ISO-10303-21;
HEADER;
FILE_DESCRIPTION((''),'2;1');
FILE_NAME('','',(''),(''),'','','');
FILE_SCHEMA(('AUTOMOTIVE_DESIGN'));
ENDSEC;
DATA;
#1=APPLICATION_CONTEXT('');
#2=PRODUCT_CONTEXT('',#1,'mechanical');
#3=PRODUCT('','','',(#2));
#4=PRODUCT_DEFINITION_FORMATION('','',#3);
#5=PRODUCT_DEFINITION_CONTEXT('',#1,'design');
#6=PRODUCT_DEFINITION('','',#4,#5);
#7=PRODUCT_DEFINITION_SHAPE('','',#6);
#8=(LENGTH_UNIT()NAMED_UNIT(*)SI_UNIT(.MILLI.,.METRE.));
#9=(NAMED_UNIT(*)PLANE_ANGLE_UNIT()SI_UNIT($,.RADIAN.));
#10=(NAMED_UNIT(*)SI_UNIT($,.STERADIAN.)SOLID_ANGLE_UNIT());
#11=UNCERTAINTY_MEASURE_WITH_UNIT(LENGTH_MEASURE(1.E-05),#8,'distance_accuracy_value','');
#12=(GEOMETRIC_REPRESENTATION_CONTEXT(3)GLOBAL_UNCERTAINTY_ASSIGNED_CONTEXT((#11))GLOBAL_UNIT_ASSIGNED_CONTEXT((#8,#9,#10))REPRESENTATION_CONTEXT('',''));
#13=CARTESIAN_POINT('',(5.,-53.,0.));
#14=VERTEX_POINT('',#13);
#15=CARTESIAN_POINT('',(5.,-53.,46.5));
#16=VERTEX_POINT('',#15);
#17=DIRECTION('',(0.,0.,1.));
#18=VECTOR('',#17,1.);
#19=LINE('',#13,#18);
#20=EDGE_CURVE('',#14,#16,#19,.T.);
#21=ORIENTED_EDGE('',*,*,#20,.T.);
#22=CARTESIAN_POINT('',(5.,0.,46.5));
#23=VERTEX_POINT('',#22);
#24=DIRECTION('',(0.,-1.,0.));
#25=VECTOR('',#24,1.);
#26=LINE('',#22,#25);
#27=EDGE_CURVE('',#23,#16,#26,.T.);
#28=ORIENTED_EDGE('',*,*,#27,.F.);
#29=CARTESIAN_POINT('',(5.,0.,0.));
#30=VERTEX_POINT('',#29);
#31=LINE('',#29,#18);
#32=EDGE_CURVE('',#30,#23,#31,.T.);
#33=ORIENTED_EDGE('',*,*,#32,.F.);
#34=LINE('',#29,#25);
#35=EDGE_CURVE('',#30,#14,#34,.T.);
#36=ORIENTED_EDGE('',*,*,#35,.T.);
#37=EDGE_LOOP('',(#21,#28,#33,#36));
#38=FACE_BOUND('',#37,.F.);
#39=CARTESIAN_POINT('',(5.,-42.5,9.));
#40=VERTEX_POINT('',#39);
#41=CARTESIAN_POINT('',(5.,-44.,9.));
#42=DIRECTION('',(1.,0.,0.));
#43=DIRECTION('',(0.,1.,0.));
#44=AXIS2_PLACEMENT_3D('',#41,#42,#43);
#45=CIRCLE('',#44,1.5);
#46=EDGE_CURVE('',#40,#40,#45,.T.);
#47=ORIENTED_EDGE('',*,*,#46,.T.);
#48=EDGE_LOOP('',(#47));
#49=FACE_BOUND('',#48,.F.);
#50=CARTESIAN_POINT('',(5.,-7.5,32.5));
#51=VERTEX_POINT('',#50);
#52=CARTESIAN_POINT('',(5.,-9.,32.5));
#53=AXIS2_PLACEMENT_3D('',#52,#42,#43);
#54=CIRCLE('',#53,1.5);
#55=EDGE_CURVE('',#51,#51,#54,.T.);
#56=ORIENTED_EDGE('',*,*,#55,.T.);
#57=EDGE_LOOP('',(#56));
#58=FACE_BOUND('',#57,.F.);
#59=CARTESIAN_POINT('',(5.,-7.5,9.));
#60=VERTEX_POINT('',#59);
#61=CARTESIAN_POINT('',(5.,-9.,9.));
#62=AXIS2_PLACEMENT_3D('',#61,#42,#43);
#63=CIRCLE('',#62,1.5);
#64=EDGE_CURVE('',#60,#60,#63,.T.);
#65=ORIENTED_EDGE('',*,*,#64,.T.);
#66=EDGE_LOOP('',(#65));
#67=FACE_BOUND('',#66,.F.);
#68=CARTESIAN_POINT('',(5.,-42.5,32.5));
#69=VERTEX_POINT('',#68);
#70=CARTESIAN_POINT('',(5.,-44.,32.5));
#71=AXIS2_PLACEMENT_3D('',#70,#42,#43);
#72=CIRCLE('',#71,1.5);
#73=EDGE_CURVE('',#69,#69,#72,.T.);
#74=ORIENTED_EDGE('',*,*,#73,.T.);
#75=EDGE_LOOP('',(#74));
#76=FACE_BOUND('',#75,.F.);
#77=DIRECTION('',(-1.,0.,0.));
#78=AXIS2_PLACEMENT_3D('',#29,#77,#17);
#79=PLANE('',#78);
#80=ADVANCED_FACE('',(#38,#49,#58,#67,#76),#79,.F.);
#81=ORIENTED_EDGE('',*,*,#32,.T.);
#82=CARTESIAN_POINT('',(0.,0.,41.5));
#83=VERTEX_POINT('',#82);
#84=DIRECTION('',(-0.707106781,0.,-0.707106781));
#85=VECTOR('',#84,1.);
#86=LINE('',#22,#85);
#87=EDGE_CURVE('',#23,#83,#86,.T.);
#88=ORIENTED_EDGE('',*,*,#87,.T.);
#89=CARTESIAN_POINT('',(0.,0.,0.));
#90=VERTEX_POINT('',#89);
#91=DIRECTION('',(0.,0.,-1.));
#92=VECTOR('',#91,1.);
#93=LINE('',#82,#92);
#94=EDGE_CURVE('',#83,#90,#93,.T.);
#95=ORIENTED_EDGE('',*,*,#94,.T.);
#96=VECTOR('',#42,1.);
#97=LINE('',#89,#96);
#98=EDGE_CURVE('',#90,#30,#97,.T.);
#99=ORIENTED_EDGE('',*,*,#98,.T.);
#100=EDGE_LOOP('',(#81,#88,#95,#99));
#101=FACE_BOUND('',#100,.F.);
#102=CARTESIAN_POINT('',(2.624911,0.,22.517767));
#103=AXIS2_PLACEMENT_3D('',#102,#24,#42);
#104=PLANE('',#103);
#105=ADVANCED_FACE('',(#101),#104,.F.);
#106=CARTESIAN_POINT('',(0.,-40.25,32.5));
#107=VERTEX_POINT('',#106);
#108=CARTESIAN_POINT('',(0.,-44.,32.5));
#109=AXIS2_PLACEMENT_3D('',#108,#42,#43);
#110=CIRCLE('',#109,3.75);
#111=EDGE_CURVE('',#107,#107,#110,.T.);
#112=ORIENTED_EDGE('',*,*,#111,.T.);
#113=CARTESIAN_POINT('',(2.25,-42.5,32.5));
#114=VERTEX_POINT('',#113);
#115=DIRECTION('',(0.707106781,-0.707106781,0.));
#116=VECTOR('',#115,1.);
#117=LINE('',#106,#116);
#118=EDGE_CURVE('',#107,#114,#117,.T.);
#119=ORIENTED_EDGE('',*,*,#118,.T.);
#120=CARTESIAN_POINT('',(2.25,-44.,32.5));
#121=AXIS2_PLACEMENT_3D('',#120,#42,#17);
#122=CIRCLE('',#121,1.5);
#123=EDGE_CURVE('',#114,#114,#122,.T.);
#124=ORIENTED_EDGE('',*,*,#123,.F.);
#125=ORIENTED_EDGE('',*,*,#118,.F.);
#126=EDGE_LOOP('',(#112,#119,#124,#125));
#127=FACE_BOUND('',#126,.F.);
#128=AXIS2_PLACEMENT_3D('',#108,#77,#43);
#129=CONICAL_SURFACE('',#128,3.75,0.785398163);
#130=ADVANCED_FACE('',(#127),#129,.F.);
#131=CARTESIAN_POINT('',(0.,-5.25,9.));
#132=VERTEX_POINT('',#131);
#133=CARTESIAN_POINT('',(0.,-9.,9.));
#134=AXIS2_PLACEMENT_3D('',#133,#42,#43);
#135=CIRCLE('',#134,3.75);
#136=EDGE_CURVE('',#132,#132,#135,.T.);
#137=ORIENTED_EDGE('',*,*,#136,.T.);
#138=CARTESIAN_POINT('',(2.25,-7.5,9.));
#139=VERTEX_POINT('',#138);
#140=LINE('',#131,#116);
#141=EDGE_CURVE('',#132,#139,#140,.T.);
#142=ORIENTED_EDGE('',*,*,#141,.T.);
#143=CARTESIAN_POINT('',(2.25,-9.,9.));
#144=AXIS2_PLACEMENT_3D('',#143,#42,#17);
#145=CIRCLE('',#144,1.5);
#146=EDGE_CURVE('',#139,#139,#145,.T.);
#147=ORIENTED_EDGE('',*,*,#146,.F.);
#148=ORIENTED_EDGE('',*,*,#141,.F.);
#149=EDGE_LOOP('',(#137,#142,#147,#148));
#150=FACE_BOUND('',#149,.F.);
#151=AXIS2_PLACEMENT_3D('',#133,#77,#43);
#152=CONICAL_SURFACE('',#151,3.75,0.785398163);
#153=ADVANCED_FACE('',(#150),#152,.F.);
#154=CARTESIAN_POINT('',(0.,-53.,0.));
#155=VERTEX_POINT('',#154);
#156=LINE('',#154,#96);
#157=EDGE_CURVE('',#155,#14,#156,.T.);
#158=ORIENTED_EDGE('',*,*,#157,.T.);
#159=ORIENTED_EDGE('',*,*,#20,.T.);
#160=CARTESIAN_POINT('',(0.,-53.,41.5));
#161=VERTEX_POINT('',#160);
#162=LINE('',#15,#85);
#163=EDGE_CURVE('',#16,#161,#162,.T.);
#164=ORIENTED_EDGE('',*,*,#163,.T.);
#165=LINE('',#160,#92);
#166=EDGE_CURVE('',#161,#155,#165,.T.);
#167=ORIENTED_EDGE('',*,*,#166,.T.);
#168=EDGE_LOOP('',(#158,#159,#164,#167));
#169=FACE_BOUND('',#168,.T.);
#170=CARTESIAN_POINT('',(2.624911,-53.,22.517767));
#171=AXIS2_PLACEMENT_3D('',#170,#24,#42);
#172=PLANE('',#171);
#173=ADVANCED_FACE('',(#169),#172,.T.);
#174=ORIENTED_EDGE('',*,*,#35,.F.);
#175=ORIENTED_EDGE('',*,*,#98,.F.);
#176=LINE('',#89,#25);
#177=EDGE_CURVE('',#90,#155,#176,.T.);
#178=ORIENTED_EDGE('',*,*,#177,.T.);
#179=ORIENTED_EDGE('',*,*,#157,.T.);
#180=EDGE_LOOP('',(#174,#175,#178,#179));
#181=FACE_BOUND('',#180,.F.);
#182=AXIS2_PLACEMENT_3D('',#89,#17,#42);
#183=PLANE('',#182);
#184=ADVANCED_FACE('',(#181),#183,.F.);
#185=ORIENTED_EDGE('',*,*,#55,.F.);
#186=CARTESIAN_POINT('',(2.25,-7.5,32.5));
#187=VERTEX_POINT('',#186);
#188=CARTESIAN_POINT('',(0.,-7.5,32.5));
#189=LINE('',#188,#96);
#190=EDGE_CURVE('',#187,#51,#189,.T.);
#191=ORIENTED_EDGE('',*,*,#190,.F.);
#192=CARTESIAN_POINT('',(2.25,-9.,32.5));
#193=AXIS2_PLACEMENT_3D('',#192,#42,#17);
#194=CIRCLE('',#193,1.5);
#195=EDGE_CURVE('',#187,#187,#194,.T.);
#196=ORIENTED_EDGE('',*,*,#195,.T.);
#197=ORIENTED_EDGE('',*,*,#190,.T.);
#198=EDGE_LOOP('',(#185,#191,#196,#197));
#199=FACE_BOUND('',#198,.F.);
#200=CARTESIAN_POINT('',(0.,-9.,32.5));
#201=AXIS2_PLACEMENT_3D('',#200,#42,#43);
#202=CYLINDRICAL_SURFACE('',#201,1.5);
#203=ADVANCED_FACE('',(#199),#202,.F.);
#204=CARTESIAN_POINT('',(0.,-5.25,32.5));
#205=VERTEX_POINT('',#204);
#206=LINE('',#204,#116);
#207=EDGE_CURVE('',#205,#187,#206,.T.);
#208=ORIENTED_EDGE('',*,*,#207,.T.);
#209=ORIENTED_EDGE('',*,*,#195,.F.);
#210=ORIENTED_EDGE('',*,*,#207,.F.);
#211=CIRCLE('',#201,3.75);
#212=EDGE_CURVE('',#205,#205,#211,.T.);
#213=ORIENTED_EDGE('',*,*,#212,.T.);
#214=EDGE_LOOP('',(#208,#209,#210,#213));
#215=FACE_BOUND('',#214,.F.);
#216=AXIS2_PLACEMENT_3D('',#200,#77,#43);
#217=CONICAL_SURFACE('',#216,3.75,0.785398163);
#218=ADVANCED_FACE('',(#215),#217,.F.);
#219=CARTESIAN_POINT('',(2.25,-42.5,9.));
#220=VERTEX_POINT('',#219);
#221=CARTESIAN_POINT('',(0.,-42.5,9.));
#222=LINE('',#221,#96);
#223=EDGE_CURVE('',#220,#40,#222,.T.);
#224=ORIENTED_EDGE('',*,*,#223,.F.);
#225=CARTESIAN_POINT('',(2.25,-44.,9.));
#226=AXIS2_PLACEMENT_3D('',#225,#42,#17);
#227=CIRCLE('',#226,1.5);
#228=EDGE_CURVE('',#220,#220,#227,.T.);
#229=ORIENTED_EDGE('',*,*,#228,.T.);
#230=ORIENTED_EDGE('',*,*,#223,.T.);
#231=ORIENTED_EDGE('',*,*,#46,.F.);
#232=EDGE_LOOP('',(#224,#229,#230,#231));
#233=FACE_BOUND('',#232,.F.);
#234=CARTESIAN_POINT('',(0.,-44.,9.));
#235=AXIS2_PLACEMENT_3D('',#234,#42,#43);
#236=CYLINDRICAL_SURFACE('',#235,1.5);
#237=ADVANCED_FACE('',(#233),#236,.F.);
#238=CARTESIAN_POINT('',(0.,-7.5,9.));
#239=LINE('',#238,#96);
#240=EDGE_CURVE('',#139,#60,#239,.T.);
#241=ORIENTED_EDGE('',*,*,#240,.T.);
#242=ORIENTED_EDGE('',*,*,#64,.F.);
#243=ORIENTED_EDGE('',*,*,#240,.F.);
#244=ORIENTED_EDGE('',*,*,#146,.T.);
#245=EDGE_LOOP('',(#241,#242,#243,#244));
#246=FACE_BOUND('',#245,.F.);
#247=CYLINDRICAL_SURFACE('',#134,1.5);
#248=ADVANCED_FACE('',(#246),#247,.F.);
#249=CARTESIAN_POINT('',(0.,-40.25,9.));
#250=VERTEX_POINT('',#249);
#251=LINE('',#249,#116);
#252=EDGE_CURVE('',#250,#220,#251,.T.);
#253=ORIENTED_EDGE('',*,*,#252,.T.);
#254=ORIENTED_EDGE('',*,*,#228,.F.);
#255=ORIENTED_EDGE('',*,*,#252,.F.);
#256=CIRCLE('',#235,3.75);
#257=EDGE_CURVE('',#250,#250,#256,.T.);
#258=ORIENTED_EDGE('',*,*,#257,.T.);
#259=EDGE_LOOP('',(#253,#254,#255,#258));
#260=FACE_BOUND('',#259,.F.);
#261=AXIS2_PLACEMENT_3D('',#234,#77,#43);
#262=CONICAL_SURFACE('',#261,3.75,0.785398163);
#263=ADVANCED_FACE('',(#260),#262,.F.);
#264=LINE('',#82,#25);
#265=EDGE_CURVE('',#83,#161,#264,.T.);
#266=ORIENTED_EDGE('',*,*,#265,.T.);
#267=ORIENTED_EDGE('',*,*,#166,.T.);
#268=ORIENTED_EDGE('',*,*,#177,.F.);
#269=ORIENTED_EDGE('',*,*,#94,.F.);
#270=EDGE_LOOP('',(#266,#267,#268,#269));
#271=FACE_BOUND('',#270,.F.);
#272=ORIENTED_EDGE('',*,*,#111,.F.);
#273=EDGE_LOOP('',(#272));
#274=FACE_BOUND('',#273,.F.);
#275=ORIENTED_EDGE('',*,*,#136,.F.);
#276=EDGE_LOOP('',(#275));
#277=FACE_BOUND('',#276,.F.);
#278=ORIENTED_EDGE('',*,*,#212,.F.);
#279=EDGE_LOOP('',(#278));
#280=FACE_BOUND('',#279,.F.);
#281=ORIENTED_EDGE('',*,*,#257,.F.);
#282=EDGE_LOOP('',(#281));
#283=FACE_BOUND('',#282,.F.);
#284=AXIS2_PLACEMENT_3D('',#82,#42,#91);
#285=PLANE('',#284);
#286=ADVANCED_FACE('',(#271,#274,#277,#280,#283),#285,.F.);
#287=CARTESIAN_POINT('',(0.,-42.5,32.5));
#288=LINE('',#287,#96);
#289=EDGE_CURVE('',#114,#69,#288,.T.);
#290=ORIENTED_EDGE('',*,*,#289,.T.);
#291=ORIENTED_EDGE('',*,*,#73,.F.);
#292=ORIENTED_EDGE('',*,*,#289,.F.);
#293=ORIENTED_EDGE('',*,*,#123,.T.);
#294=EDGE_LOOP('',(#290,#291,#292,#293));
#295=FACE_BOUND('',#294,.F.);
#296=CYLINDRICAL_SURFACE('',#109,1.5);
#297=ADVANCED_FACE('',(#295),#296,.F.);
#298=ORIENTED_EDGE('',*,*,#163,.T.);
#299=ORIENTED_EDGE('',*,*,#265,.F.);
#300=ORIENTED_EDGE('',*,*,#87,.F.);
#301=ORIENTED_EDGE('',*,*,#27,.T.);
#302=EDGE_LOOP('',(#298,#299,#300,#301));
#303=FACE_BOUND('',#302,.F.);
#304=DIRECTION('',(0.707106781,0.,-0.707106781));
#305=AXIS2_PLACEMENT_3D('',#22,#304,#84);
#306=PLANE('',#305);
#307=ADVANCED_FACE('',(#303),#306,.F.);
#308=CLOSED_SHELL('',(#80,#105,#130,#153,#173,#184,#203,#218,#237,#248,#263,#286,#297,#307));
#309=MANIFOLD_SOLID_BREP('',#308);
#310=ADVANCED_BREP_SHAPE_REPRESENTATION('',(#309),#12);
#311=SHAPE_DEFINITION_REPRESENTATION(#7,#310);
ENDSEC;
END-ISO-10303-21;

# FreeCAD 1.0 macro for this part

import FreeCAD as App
import Part
import Sketcher

V = App.Vector
Q = App.Units.Quantity

doc = App.newDocument("Part")
body = doc.addObject("PartDesign::Body", "Body")

sketch1 = body.newObject("Sketcher::SketchObject", "Sketch")
sketch1.AttachmentSupport = (doc.getObject("XZ_Plane"), [""])
sketch1.MapMode = "FlatFace"
sketch1.addGeometry(Part.LineSegment(V(0, 42, 0), V(0, 0, 0)), False)
sketch1.addGeometry(Part.LineSegment(V(0, 0, 0), V(5, 0, 0)), False)
sketch1.addGeometry(Part.LineSegment(V(5, 0, 0), V(5, 46, 0)), False)
sketch1.addGeometry(Part.LineSegment(V(5, 46, 0), V(0, 42, 0)), False)
sketch1.addConstraint(Sketcher.Constraint("Coincident", 0, 2, 1, 1))
sketch1.addConstraint(Sketcher.Constraint("Coincident", 1, 2, 2, 1))
sketch1.addConstraint(Sketcher.Constraint("Coincident", 2, 2, 3, 1))
sketch1.addConstraint(Sketcher.Constraint("Coincident", 3, 2, 0, 1))
sketch1.addConstraint(Sketcher.Constraint("Vertical", 0))
sketch1.addConstraint(Sketcher.Constraint("Horizontal", 1))
sketch1.addConstraint(Sketcher.Constraint("Vertical", 2))
sketch1.addConstraint(Sketcher.Constraint("Coincident", 0, 2, -1, 1))
sketch1.addConstraint(Sketcher.Constraint("DistanceX", 1, 1, 1, 2, 5.0))
sketch1.addConstraint(Sketcher.Constraint("Angle", 3, Q("-135 deg")))
sketch1.addConstraint(Sketcher.Constraint("DistanceY", 0, 2, 0, 1, 41.5))
pad1 = body.newObject("PartDesign::Pad", "Pad")
pad1.Profile = sketch1
pad1.Length = 53

sketch2 = body.newObject("Sketcher::SketchObject", "Sketch001")
sketch2.AttachmentSupport = (doc.getObject("YZ_Plane"), [""])
sketch2.MapMode = "FlatFace"
sketch2.addGeometry(Part.Circle(V(-9, 32.5, 0), V(0, 0, 1), 1.5), False)
sketch2.addGeometry(Part.Circle(V(-44, 32.5, 0), V(0, 0, 1), 1.5), False)
sketch2.addGeometry(Part.Circle(V(-44, 9, 0), V(0, 0, 1), 1.5), False)
sketch2.addGeometry(Part.Circle(V(-9, 9, 0), V(0, 0, 1), 1.5), False)
sketch2.addConstraint(Sketcher.Constraint("Equal", 0, 1))
sketch2.addConstraint(Sketcher.Constraint("Equal", 1, 2))
sketch2.addConstraint(Sketcher.Constraint("Equal", 2, 3))
sketch2.addConstraint(Sketcher.Constraint("Horizontal", 0, 3, 1, 3))
sketch2.addConstraint(Sketcher.Constraint("Horizontal", 2, 3, 3, 3))
sketch2.addConstraint(Sketcher.Constraint("Vertical", 1, 3, 2, 3))
sketch2.addConstraint(Sketcher.Constraint("Vertical", 0, 3, 3, 3))
sketch2.addConstraint(Sketcher.Constraint("Diameter", 0, 3.0))
sketch2.addConstraint(Sketcher.Constraint("DistanceX", 0, 3, -1, 1, 9.0))
sketch2.addConstraint(Sketcher.Constraint("DistanceX", 1, 3, -1, 1, 44.0))
sketch2.addConstraint(Sketcher.Constraint("DistanceY", -1, 1, 2, 3, 9.0))
sketch2.addConstraint(Sketcher.Constraint("DistanceY", -1, 1, 0, 3, 32.5))
doc.recompute()
hole = body.newObject("PartDesign::Hole", "Hole")
hole.Profile = sketch2
hole.ThreadType = "None"
hole.Diameter = 3
hole.DepthType = "ThroughAll"
hole.HoleCutType = "Countersink"
hole.HoleCutDiameter = 7.5
hole.HoleCutCountersinkAngle = 90
hole.Reversed = True

doc.recompute()
